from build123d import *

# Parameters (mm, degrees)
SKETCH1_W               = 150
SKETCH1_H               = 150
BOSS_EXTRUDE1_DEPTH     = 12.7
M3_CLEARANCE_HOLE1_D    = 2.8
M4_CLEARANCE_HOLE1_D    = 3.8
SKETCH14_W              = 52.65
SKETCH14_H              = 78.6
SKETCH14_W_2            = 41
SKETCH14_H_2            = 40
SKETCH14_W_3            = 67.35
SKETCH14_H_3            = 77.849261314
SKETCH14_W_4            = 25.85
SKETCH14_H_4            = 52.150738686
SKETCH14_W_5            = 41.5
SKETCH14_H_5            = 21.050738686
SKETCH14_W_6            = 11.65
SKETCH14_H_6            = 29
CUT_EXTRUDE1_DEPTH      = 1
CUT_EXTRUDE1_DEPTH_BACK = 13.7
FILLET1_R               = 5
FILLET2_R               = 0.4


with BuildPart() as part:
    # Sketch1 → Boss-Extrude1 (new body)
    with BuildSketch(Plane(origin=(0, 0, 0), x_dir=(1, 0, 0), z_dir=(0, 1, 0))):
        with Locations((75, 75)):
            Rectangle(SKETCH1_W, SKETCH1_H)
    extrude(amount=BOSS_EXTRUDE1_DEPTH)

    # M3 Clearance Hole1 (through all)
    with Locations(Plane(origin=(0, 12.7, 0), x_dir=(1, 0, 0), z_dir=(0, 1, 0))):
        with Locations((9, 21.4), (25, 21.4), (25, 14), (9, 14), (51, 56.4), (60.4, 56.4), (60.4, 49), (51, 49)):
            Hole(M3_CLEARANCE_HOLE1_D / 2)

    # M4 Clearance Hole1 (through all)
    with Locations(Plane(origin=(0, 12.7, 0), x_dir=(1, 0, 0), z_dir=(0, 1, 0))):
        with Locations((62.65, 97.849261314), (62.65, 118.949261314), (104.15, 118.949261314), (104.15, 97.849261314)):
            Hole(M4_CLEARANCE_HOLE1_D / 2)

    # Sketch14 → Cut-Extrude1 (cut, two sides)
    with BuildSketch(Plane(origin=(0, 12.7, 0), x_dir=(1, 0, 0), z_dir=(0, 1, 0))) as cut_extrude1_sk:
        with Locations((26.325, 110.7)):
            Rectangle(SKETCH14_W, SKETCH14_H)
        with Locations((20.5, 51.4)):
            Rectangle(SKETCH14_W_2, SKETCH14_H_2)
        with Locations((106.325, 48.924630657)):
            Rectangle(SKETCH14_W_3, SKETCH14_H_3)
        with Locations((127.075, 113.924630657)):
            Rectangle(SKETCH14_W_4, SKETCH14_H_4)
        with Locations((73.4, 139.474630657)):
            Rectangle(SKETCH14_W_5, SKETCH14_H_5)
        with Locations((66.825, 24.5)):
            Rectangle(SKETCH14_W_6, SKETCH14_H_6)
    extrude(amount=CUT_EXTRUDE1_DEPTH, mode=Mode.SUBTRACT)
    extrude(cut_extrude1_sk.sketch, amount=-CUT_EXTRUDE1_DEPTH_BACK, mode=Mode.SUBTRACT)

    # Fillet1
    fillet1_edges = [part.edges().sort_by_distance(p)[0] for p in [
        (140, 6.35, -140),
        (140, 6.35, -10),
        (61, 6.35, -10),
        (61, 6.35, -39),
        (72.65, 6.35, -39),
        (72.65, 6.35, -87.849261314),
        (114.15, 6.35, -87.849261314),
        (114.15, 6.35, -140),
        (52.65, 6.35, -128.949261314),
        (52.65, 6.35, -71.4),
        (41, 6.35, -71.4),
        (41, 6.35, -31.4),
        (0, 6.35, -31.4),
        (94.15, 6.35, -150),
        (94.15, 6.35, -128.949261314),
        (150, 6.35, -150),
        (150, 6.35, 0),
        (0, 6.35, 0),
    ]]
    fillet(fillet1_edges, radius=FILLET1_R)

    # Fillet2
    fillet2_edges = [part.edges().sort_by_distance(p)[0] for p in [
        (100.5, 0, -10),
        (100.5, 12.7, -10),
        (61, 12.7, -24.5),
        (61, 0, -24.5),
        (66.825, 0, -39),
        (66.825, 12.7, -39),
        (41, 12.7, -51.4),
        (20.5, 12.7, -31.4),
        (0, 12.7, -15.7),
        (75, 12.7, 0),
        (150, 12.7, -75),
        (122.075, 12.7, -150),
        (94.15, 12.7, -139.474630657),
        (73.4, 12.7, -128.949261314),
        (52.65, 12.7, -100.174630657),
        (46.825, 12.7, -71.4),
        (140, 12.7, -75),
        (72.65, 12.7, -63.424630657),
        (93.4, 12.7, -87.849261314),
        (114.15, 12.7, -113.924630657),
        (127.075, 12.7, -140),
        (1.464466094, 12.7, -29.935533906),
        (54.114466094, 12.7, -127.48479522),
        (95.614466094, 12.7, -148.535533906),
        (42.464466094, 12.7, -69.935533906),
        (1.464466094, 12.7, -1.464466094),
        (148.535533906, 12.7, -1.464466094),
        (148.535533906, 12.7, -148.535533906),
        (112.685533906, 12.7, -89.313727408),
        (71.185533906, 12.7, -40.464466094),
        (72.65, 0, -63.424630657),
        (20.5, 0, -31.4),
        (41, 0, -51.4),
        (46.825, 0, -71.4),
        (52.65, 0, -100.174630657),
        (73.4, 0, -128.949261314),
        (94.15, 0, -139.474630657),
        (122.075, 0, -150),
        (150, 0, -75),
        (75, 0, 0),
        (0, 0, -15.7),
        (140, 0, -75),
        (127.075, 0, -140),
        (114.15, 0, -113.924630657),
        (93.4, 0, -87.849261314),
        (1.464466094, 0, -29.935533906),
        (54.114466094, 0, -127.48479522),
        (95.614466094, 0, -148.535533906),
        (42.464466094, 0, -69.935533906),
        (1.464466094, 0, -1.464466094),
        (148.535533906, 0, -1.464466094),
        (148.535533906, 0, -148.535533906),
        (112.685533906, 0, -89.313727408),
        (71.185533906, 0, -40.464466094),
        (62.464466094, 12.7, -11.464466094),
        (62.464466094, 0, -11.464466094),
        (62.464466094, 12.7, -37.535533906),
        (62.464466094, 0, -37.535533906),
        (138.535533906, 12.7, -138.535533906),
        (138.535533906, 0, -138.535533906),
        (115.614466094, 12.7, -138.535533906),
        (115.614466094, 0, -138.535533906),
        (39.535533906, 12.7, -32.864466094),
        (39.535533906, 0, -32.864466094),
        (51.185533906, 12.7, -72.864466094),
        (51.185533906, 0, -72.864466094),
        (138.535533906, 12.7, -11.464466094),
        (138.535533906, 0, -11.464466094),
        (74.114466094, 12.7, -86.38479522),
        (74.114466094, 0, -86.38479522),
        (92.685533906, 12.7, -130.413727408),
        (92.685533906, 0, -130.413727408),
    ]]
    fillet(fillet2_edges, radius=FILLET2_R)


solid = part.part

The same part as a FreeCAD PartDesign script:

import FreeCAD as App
import Part
import Sketcher

V = App.Vector
Q = App.Units.Quantity


def edges_at(feature, points):
    """Names of the edges that pass closest to the given points."""
    edges = feature.Shape.Edges
    near = lambda p: min(range(len(edges)), key=lambda i: edges[i].distToShape(Part.Vertex(*p))[0])
    return sorted({f"Edge{near(p) + 1}" for p in points})


def add_polygon(sketch, points):
    """Adds a closed chain of lines whose ends are joined by coincident constraints."""
    first, n = sketch.GeometryCount, len(points)
    for a, b in zip(points, points[1:] + points[:1]):
        sketch.addGeometry(Part.LineSegment(App.Vector(*a, 0), App.Vector(*b, 0)), False)
    for i in range(n):
        sketch.addConstraint(Sketcher.Constraint("Coincident", first + i, 2, first + (i + 1) % n, 1))

doc = App.newDocument("Part")
params = doc.addObject("Spreadsheet::Sheet", "Params")
for row, (alias, value) in enumerate([
    ("sketch1_width", "150 mm"),
    ("pad1_length", "12.7 mm"),
    ("sketch2_diameter", "2.8 mm"),
    ("hole_diameter", "2.8 mm"),
    ("sketch3_diameter", "3.8 mm"),
    ("hole2_diameter", "3.8 mm"),
    ("sketch4_width", "41 mm"),
    ("sketch4_width2", "79 mm"),
    ("sketch4_height", "40 mm"),
    ("sketch4_height2", "29 mm"),
    ("sketch4_height3", "130 mm"),
    ("fillet_radius", "5 mm"),
    ("fillet2_radius", "0.4 mm"),
], start=1):
    params.set(f"A{row}", alias)
    params.set(f"B{row}", "=" + value)
    params.setAlias(f"B{row}", alias)

body = doc.addObject("PartDesign::Body", "Body")

# Sketch on XZ plane
sketch1 = body.newObject("Sketcher::SketchObject", "Sketch")
sketch1.AttachmentSupport = (doc.getObject("XZ_Plane"), [""])
sketch1.MapMode = "FlatFace"
add_polygon(sketch1, [(0, -150), (0, 0), (150, 0), (150, -150)])  # lines 0-3
sketch1.addConstraint([
    Sketcher.Constraint("Vertical", 0),
    Sketcher.Constraint("Horizontal", 1),
    Sketcher.Constraint("Vertical", 2),
    Sketcher.Constraint("Horizontal", 3),
    Sketcher.Constraint("Coincident", 0, 2, -1, 1),
    Sketcher.Constraint("Equal", 3, 0),
    Sketcher.Constraint("DistanceX", 1, 1, 1, 2, Q("150 mm")),
])
sketch1.setExpression("Constraints[10]", "Params.sketch1_width")
pad1 = body.newObject("PartDesign::Pad", "Pad")
pad1.Profile = sketch1
pad1.setExpression("Length", "Params.pad1_length")
pad1.Reversed = True

# Sketch on XZ plane
sketch2 = body.newObject("Sketcher::SketchObject", "Sketch001")
sketch2.AttachmentSupport = (doc.getObject("XZ_Plane"), [""])
sketch2.MapMode = "FlatFace"
sketch2.AttachmentOffset = App.Placement(V(0, 0, -12.7), App.Rotation())
sketch2.addGeometry([
    Part.Circle(V(9, -21.4, 0), V(0, 0, 1), 1.4),  # 0
    Part.Circle(V(25, -21.4, 0), V(0, 0, 1), 1.4),  # 1
    Part.Circle(V(25, -14, 0), V(0, 0, 1), 1.4),  # 2
    Part.Circle(V(9, -14, 0), V(0, 0, 1), 1.4),  # 3
    Part.Circle(V(51, -56.4, 0), V(0, 0, 1), 1.4),  # 4
    Part.Circle(V(60.4, -56.4, 0), V(0, 0, 1), 1.4),  # 5
    Part.Circle(V(60.4, -49, 0), V(0, 0, 1), 1.4),  # 6
    Part.Circle(V(51, -49, 0), V(0, 0, 1), 1.4),  # 7
], False)
sketch2.addConstraint([
    Sketcher.Constraint("Equal", 0, 1),
    Sketcher.Constraint("Equal", 1, 2),
    Sketcher.Constraint("Equal", 2, 3),
    Sketcher.Constraint("Equal", 3, 4),
    Sketcher.Constraint("Equal", 4, 5),
    Sketcher.Constraint("Equal", 5, 6),
    Sketcher.Constraint("Equal", 6, 7),
    Sketcher.Constraint("Horizontal", 0, 3, 1, 3),
    Sketcher.Constraint("Horizontal", 2, 3, 3, 3),
    Sketcher.Constraint("Horizontal", 4, 3, 5, 3),
    Sketcher.Constraint("Horizontal", 6, 3, 7, 3),
    Sketcher.Constraint("Vertical", 1, 3, 2, 3),
    Sketcher.Constraint("Vertical", 0, 3, 3, 3),
    Sketcher.Constraint("Vertical", 5, 3, 6, 3),
    Sketcher.Constraint("Vertical", 4, 3, 7, 3),
    Sketcher.Constraint("Diameter", 0, Q("2.8 mm")),
    Sketcher.Constraint("DistanceX", -1, 1, 0, 3, Q("9 mm")),
    Sketcher.Constraint("DistanceX", -1, 1, 1, 3, Q("25 mm")),
    Sketcher.Constraint("DistanceY", 2, 3, -1, 1, Q("14 mm")),
    Sketcher.Constraint("DistanceX", -1, 1, 4, 3, Q("51 mm")),
    Sketcher.Constraint("DistanceY", 6, 3, -1, 1, Q("49 mm")),
    Sketcher.Constraint("DistanceY", 4, 3, 1, 3, Q("35 mm")),
    Sketcher.Constraint("DistanceY", 0, 3, -1, 1, Q("21.4 mm")),
    Sketcher.Constraint("DistanceX", -1, 1, 5, 3, Q("60.4 mm")),
])
sketch2.setExpression("Constraints[15]", "Params.sketch2_diameter")
doc.recompute()
hole = body.newObject("PartDesign::Hole", "Hole")
hole.Profile = sketch2
hole.ThreadType = "None"
hole.setExpression("Diameter", "Params.hole_diameter")
hole.DepthType = "ThroughAll"
hole.Reversed = True

# Sketch on XZ plane
sketch3 = body.newObject("Sketcher::SketchObject", "Sketch002")
sketch3.AttachmentSupport = (doc.getObject("XZ_Plane"), [""])
sketch3.MapMode = "FlatFace"
sketch3.AttachmentOffset = App.Placement(V(0, 0, -12.7), App.Rotation())
sketch3.addGeometry([
    Part.Circle(V(62.6, -97.8, 0), V(0, 0, 1), 1.9),
    Part.Circle(V(62.6, -118.9, 0), V(0, 0, 1), 1.9),
    Part.Circle(V(104.2, -118.9, 0), V(0, 0, 1), 1.9),
    Part.Circle(V(104.2, -97.8, 0), V(0, 0, 1), 1.9),
], False)
sketch3.addConstraint([
    Sketcher.Constraint("Equal", 0, 1),
    Sketcher.Constraint("Equal", 1, 2),
    Sketcher.Constraint("Equal", 2, 3),
    Sketcher.Constraint("Horizontal", 1, 3, 2, 3),
    Sketcher.Constraint("Horizontal", 0, 3, 3, 3),
    Sketcher.Constraint("Vertical", 0, 3, 1, 3),
    Sketcher.Constraint("Vertical", 2, 3, 3, 3),
    Sketcher.Constraint("Diameter", 0, Q("3.8 mm")),
    Sketcher.Constraint("DistanceY", 1, 3, 0, 3, Q("21.1 mm")),
    Sketcher.Constraint("DistanceX", 1, 3, 2, 3, Q("41.5 mm")),
    Sketcher.Constraint("DistanceX", -1, 1, 0, 3, Q("62.65 mm")),
    Sketcher.Constraint("DistanceY", 0, 3, -1, 1, Q("97.849261 mm")),
])
sketch3.setExpression("Constraints[7]", "Params.sketch3_diameter")
doc.recompute()
hole2 = body.newObject("PartDesign::Hole", "Hole001")
hole2.Profile = sketch3
hole2.ThreadType = "None"
hole2.setExpression("Diameter", "Params.hole2_diameter")
hole2.DepthType = "ThroughAll"
hole2.Reversed = True

# Sketch on XZ plane
sketch4 = body.newObject("Sketcher::SketchObject", "Sketch003")
sketch4.AttachmentSupport = (doc.getObject("XZ_Plane"), [""])
sketch4.MapMode = "FlatFace"
sketch4.AttachmentOffset = App.Placement(V(0, 0, -12.7), App.Rotation())
add_polygon(sketch4, [(0, -150), (0, -31), (41, -31), (41, -71), (53, -71), (53, -129), (94, -129), (94, -150)])  # lines 0-7
add_polygon(sketch4, [(73, -88), (73, -39), (61, -39), (61, -10), (140, -10), (140, -140), (114, -140), (114, -88)])  # lines 8-15
sketch4.addConstraint([
    Sketcher.Constraint("Vertical", 0),
    Sketcher.Constraint("Horizontal", 1),
    Sketcher.Constraint("Vertical", 2),
    Sketcher.Constraint("Horizontal", 3),
    Sketcher.Constraint("Vertical", 4),
    Sketcher.Constraint("Horizontal", 5),
    Sketcher.Constraint("Vertical", 6),
    Sketcher.Constraint("Horizontal", 7),
    Sketcher.Constraint("Vertical", 8),
    Sketcher.Constraint("Horizontal", 9),
    Sketcher.Constraint("Vertical", 10),
    Sketcher.Constraint("Horizontal", 11),
    Sketcher.Constraint("Vertical", 12),
    Sketcher.Constraint("Horizontal", 13),
    Sketcher.Constraint("Vertical", 14),
    Sketcher.Constraint("Horizontal", 15),
    Sketcher.Constraint("PointOnObject", 0, 2, -2),
    Sketcher.Constraint("Equal", 3, 9),
    Sketcher.Constraint("Equal", 5, 15),
    Sketcher.Constraint("DistanceX", 1, 1, 1, 2, Q("41 mm")),
    Sketcher.Constraint("DistanceX", 11, 1, 11, 2, Q("79 mm")),
    Sketcher.Constraint("DistanceY", 2, 2, 2, 1, Q("40 mm")),
    Sketcher.Constraint("DistanceY", 10, 1, 10, 2, Q("29 mm")),
    Sketcher.Constraint("DistanceY", 12, 2, 12, 1, Q("130 mm")),
    Sketcher.Constraint("DistanceX", 5, 1, 5, 2, Q("41.5 mm")),
    Sketcher.Constraint("DistanceY", 0, 1, 0, 2, Q("118.6 mm")),
    Sketcher.Constraint("DistanceY", 6, 2, -1, 1, Q("150 mm")),
    Sketcher.Constraint("DistanceY", 8, 2, -1, 1, Q("39 mm")),
    Sketcher.Constraint("DistanceX", -1, 1, 9, 2, Q("61 mm")),
    Sketcher.Constraint("DistanceX", 3, 1, 3, 2, Q("11.65 mm")),
    Sketcher.Constraint("DistanceY", 5, 2, 14, 2, Q("41.1 mm")),
    Sketcher.Constraint("DistanceY", 4, 2, 4, 1, Q("57.549261 mm")),
])
sketch4.setExpression("Constraints[35]", "Params.sketch4_width")
sketch4.setExpression("Constraints[36]", "Params.sketch4_width2")
sketch4.setExpression("Constraints[37]", "Params.sketch4_height")
sketch4.setExpression("Constraints[38]", "Params.sketch4_height2")
sketch4.setExpression("Constraints[39]", "Params.sketch4_height3")
pocket1 = body.newObject("PartDesign::Pocket", "Pocket")
pocket1.Profile = sketch4
pocket1.Type = "ThroughAll"
pocket1.Midplane = True
doc.recompute()

fillet = body.newObject("PartDesign::Fillet", "Fillet")
fillet.Base = (pocket1, edges_at(pocket1, [
    (140, 6.35, -140),
    (140, 6.35, -10),
    (61, 6.35, -10),
    (61, 6.35, -39),
    (72.65, 6.35, -39),
    (72.65, 6.35, -87.849),
    (114.15, 6.35, -87.849),
    (114.15, 6.35, -140),
    (52.65, 6.35, -128.949),
    (52.65, 6.35, -71.4),
    (41, 6.35, -71.4),
    (41, 6.35, -31.4),
    (0, 6.35, -31.4),
    (94.15, 6.35, -150),
    (94.15, 6.35, -128.949),
    (150, 6.35, -150),
    (150, 6.35, 0),
    (0, 6.35, 0),
]))
fillet.setExpression("Radius", "Params.fillet_radius")
doc.recompute()

fillet2 = body.newObject("PartDesign::Fillet", "Fillet001")
fillet2.Base = (fillet, edges_at(fillet, [
    (100.5, 0, -10),
    (100.5, 12.7, -10),
    (61, 12.7, -24.5),
    (61, 0, -24.5),
    (66.825, 0, -39),
    (66.825, 12.7, -39),
    (41, 12.7, -51.4),
    (20.5, 12.7, -31.4),
    (0, 12.7, -15.7),
    (75, 12.7, 0),
    (150, 12.7, -75),
    (122.075, 12.7, -150),
    (94.15, 12.7, -139.475),
    (73.4, 12.7, -128.949),
    (52.65, 12.7, -100.175),
    (46.825, 12.7, -71.4),
    (140, 12.7, -75),
    (72.65, 12.7, -63.425),
    (93.4, 12.7, -87.849),
    (114.15, 12.7, -113.925),
    (127.075, 12.7, -140),
    (1.464, 12.7, -29.936),
    (54.114, 12.7, -127.485),
    (95.614, 12.7, -148.536),
    (42.464, 12.7, -69.936),
    (1.464, 12.7, -1.464),
    (148.536, 12.7, -1.464),
    (148.536, 12.7, -148.536),
    (112.686, 12.7, -89.314),
    (71.186, 12.7, -40.464),
    (72.65, 0, -63.425),
    (20.5, 0, -31.4),
    (41, 0, -51.4),
    (46.825, 0, -71.4),
    (52.65, 0, -100.175),
    (73.4, 0, -128.949),
    (94.15, 0, -139.475),
    (122.075, 0, -150),
    (150, 0, -75),
    (75, 0, 0),
    (0, 0, -15.7),
    (140, 0, -75),
    (127.075, 0, -140),
    (114.15, 0, -113.925),
    (93.4, 0, -87.849),
    (1.464, 0, -29.936),
    (54.114, 0, -127.485),
    (95.614, 0, -148.536),
    (42.464, 0, -69.936),
    (1.464, 0, -1.464),
    (148.536, 0, -1.464),
    (148.536, 0, -148.536),
    (112.686, 0, -89.314),
    (71.186, 0, -40.464),
    (62.464, 12.7, -11.464),
    (62.464, 0, -11.464),
    (62.464, 12.7, -37.536),
    (62.464, 0, -37.536),
    (138.536, 12.7, -138.536),
    (138.536, 0, -138.536),
    (115.614, 12.7, -138.536),
    (115.614, 0, -138.536),
    (39.536, 12.7, -32.864),
    (39.536, 0, -32.864),
    (51.186, 12.7, -72.864),
    (51.186, 0, -72.864),
    (138.536, 12.7, -11.464),
    (138.536, 0, -11.464),
    (74.114, 12.7, -86.385),
    (74.114, 0, -86.385),
    (92.686, 12.7, -130.414),
    (92.686, 0, -130.414),
]))
fillet2.setExpression("Radius", "Params.fillet2_radius")

doc.recompute()
